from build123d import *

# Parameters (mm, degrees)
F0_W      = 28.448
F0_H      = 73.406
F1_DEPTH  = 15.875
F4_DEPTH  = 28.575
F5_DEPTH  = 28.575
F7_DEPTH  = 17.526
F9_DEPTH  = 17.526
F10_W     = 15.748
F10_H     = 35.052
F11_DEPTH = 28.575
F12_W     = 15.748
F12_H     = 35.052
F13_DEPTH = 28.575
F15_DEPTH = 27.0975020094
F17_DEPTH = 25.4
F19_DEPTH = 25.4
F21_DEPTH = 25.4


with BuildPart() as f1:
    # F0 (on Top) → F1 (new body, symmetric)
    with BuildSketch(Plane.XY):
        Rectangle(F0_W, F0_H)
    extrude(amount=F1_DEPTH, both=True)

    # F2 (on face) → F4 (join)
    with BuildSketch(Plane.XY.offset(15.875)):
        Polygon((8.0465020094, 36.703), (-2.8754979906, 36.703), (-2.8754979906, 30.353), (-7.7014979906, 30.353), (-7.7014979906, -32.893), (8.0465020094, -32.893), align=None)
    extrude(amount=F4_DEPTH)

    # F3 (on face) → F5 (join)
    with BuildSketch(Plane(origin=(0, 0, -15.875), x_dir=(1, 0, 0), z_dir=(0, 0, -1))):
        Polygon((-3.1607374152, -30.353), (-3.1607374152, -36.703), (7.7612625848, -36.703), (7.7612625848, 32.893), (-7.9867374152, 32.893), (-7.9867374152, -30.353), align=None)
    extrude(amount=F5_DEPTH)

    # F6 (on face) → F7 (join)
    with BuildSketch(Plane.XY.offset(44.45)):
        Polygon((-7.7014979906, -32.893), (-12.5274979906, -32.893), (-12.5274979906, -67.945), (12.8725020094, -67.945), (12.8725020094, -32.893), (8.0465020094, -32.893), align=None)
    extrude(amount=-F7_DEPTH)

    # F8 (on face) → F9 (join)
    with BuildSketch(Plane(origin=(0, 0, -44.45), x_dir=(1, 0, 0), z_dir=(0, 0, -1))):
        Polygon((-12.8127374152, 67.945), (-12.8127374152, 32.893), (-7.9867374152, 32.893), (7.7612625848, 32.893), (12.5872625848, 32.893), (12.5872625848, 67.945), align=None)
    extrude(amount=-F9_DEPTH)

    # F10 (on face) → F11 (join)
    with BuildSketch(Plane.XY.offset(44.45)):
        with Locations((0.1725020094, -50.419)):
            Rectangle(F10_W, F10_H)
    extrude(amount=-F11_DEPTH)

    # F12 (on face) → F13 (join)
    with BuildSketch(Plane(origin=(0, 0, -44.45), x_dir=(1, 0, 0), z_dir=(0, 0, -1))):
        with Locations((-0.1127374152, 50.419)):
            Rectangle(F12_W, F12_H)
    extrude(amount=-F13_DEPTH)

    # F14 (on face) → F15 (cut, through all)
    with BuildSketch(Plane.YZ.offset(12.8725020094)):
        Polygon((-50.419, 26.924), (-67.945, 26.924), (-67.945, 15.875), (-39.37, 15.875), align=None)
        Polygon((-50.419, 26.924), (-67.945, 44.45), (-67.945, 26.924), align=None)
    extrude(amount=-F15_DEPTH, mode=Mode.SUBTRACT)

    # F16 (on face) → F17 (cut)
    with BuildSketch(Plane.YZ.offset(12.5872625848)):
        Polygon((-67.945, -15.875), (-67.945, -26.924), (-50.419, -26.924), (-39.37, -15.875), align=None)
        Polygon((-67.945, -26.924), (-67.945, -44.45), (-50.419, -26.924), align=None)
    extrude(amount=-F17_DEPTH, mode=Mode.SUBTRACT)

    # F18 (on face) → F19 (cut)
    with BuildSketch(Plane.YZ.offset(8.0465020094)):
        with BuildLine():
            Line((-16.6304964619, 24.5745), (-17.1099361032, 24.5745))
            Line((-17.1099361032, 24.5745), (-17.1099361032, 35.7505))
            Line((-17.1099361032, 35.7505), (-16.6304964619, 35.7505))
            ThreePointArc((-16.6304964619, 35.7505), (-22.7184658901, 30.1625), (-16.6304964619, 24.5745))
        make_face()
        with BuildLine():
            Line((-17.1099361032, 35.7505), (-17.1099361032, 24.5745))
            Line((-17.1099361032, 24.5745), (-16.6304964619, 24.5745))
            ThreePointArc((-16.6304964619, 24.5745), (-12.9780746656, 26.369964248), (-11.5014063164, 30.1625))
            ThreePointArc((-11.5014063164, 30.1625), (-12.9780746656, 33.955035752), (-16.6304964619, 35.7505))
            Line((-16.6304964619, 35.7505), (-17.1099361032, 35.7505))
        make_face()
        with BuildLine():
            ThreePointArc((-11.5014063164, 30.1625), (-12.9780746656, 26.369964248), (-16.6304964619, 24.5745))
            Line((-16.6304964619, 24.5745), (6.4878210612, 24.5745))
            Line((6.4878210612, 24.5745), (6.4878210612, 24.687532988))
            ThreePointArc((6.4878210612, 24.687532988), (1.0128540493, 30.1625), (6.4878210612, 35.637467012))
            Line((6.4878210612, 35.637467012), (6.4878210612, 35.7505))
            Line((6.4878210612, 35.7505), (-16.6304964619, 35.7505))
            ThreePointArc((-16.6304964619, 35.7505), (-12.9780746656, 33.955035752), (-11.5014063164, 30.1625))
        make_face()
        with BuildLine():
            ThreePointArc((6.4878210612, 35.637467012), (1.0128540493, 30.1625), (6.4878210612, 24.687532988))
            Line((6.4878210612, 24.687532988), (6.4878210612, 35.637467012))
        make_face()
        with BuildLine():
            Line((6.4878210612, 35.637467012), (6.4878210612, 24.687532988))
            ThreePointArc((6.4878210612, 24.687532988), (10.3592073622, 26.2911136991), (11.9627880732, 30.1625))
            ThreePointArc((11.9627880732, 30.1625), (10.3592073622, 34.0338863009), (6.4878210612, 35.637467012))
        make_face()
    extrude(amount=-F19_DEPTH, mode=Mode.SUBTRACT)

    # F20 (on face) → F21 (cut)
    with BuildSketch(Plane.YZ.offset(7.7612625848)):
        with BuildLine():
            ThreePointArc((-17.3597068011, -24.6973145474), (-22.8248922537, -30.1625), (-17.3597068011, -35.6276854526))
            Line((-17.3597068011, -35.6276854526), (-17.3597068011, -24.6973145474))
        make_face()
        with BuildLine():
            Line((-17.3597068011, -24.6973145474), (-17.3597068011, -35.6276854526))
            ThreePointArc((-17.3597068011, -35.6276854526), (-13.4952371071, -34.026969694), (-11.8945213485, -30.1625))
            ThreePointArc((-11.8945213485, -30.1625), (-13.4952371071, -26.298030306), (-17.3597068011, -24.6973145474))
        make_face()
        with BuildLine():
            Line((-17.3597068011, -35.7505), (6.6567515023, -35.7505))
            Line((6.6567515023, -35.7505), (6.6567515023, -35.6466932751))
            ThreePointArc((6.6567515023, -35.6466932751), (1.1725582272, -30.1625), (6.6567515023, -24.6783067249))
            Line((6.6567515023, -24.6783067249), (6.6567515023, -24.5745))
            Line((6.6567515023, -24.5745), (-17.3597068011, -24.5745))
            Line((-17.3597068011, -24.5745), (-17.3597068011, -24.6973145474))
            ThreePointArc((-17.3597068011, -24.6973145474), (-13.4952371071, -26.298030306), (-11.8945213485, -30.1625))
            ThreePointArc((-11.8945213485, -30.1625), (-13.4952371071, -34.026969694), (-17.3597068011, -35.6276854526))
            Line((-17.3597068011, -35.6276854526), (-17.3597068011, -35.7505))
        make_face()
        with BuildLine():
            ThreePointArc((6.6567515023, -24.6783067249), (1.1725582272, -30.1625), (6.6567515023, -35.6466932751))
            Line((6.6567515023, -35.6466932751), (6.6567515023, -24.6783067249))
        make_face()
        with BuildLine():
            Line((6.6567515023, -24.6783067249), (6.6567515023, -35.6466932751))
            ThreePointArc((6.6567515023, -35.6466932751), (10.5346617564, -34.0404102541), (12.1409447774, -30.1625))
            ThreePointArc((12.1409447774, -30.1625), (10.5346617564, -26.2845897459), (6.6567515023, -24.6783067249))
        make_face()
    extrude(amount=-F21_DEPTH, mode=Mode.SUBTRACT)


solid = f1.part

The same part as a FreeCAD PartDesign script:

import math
import FreeCAD as App
import Part
import Sketcher

V = App.Vector
Q = App.Units.Quantity


def add_polygon(sketch, points):
    """Adds a closed chain of lines whose ends are joined by coincident constraints."""
    first, n = sketch.GeometryCount, len(points)
    for a, b in zip(points, points[1:] + points[:1]):
        sketch.addGeometry(Part.LineSegment(App.Vector(*a, 0), App.Vector(*b, 0)), False)
    for i in range(n):
        sketch.addConstraint(Sketcher.Constraint("Coincident", first + i, 2, first + (i + 1) % n, 1))

doc = App.newDocument("Part")
params = doc.addObject("Spreadsheet::Sheet", "Params")
for row, (alias, value) in enumerate([
    ("sketch1_width", "1.12 in"),
    ("sketch1_height", "2.89 in"),
    ("pad1_length", "1.25 in"),
    ("sketch2_width", "0.43 in"),
    ("sketch2_width2", "0.19 in"),
    ("sketch2_height", "0.25 in"),
    ("sketch2_height2", "2.49 in"),
    ("pad2_length", "1.125 in"),
    ("sketch3_width", "0.43 in"),
    ("sketch3_width2", "0.62 in"),
    ("sketch3_height", "0.25 in"),
    ("sketch3_height2", "2.74 in"),
    ("pad3_length", "1.125 in"),
    ("sketch4_width", "1 in"),
    ("sketch4_height", "1.38 in"),
    ("pad4_length", "0.69 in"),
    ("sketch5_width", "1 in"),
    ("sketch5_height", "1.38 in"),
    ("pad5_length", "0.69 in"),
    ("sketch6_width", "0.62 in"),
    ("sketch6_height", "1.38 in"),
    ("pad6_length", "1.125 in"),
    ("sketch7_width", "0.62 in"),
    ("sketch7_height", "1.38 in"),
    ("pad7_length", "1.125 in"),
    ("sketch8_width", "1.125 in"),
    ("sketch9_width", "1.125 in"),
    ("pocket2_length", "1 in"),
    ("sketch10_height", "0.22 in"),
    ("pocket3_length", "1 in"),
    ("pocket4_length", "1 in"),
], start=1):
    params.set(f"A{row}", alias)
    params.set(f"B{row}", "=" + value)
    params.setAlias(f"B{row}", alias)

body = doc.addObject("PartDesign::Body", "Body")

# Sketch on XY plane
sketch1 = doc.addObject("Sketcher::SketchObject", "Sketch")
body.addObject(sketch1)
sketch1.AttachmentSupport = (doc.XY_Plane, [""])
sketch1.MapMode = "FlatFace"
add_polygon(sketch1, [(-14, 37), (-14, -37), (14, -37), (14, 37)])  # lines 0-3
sketch1.addConstraint(Sketcher.Constraint("Vertical", 0))
sketch1.addConstraint(Sketcher.Constraint("Horizontal", 1))
sketch1.addConstraint(Sketcher.Constraint("Vertical", 2))
sketch1.addConstraint(Sketcher.Constraint("Horizontal", 3))
sketch1.addConstraint(Sketcher.Constraint("Symmetric", 0, 2, 2, 2, -1, 1))
sketch1.addConstraint(Sketcher.Constraint("DistanceX", 1, 1, 1, 2, Q("1.12 in")))
sketch1.addConstraint(Sketcher.Constraint("DistanceY", 0, 2, 0, 1, Q("2.89 in")))
sketch1.setExpression("Constraints[9]", "Params.sketch1_width")
sketch1.setExpression("Constraints[10]", "Params.sketch1_height")
pad1 = doc.addObject("PartDesign::Pad", "Pad")
body.addObject(pad1)
pad1.Profile = sketch1
pad1.setExpression("Length", "Params.pad1_length")
pad1.Midplane = True

# Sketch on XY plane
sketch2 = doc.addObject("Sketcher::SketchObject", "Sketch001")
body.addObject(sketch2)
sketch2.AttachmentSupport = (doc.XY_Plane, [""])
sketch2.MapMode = "FlatFace"
sketch2.AttachmentOffset = App.Placement(V(0, 0, 0.625 * 25.4), App.Rotation())
add_polygon(sketch2, [(8, 36.7), (-2.9, 36.7), (-2.9, 30.4), (-7.7, 30.4), (-7.7, -32.9), (8, -32.9)])  # lines 0-5
sketch2.addConstraint(Sketcher.Constraint("Horizontal", 0))
sketch2.addConstraint(Sketcher.Constraint("Vertical", 1))
sketch2.addConstraint(Sketcher.Constraint("Horizontal", 2))
sketch2.addConstraint(Sketcher.Constraint("Vertical", 3))
sketch2.addConstraint(Sketcher.Constraint("Horizontal", 4))
sketch2.addConstraint(Sketcher.Constraint("Vertical", 5))
sketch2.addConstraint(Sketcher.Constraint("DistanceX", 0, 2, 0, 1, Q("0.43 in")))
sketch2.addConstraint(Sketcher.Constraint("DistanceX", 2, 2, 2, 1, Q("0.19 in")))
sketch2.addConstraint(Sketcher.Constraint("DistanceY", 1, 2, 1, 1, Q("0.25 in")))
sketch2.addConstraint(Sketcher.Constraint("DistanceY", 3, 2, 3, 1, Q("2.49 in")))
sketch2.addConstraint(Sketcher.Constraint("DistanceY", -1, 1, 0, 2, Q("1.445 in")))
sketch2.addConstraint(Sketcher.Constraint("DistanceX", 0, 2, -1, 1, 2.875498))
sketch2.setExpression("Constraints[12]", "Params.sketch2_width")
sketch2.setExpression("Constraints[13]", "Params.sketch2_width2")
sketch2.setExpression("Constraints[14]", "Params.sketch2_height")
sketch2.setExpression("Constraints[15]", "Params.sketch2_height2")
pad2 = doc.addObject("PartDesign::Pad", "Pad001")
body.addObject(pad2)
pad2.Profile = sketch2
pad2.setExpression("Length", "Params.pad2_length")

# Sketch on XY plane
sketch3 = doc.addObject("Sketcher::SketchObject", "Sketch002")
body.addObject(sketch3)
sketch3.AttachmentSupport = (doc.XY_Plane, [""])
sketch3.MapMode = "FlatFace"
sketch3.AttachmentOffset = App.Placement(V(0, 0, -0.625 * 25.4), App.Rotation())
add_polygon(sketch3, [(-3.2, 30.4), (-3.2, 36.7), (7.8, 36.7), (7.8, -32.9), (-8, -32.9), (-8, 30.4)])  # lines 0-5
sketch3.addConstraint(Sketcher.Constraint("Vertical", 0))
sketch3.addConstraint(Sketcher.Constraint("Horizontal", 1))
sketch3.addConstraint(Sketcher.Constraint("Vertical", 2))
sketch3.addConstraint(Sketcher.Constraint("Horizontal", 3))
sketch3.addConstraint(Sketcher.Constraint("Vertical", 4))
sketch3.addConstraint(Sketcher.Constraint("Horizontal", 5))
sketch3.addConstraint(Sketcher.Constraint("DistanceX", 1, 1, 1, 2, Q("0.43 in")))
sketch3.addConstraint(Sketcher.Constraint("DistanceX", 3, 2, 3, 1, Q("0.62 in")))
sketch3.addConstraint(Sketcher.Constraint("DistanceY", 0, 1, 0, 2, Q("0.25 in")))
sketch3.addConstraint(Sketcher.Constraint("DistanceY", 2, 2, 2, 1, Q("2.74 in")))
sketch3.addConstraint(Sketcher.Constraint("DistanceY", -1, 1, 0, 2, Q("1.445 in")))
sketch3.addConstraint(Sketcher.Constraint("DistanceX", 0, 2, -1, 1, 3.160737))
sketch3.setExpression("Constraints[12]", "Params.sketch3_width")
sketch3.setExpression("Constraints[13]", "Params.sketch3_width2")
sketch3.setExpression("Constraints[14]", "Params.sketch3_height")
sketch3.setExpression("Constraints[15]", "Params.sketch3_height2")
pad3 = doc.addObject("PartDesign::Pad", "Pad002")
body.addObject(pad3)
pad3.Profile = sketch3
pad3.setExpression("Length", "Params.pad3_length")
pad3.Reversed = True

# Sketch on XY plane
sketch4 = doc.addObject("Sketcher::SketchObject", "Sketch003")
body.addObject(sketch4)
sketch4.AttachmentSupport = (doc.XY_Plane, [""])
sketch4.MapMode = "FlatFace"
sketch4.AttachmentOffset = App.Placement(V(0, 0, 1.75 * 25.4), App.Rotation())
add_polygon(sketch4, [(-13, -33), (-13, -68), (13, -68), (13, -33)])  # lines 0-3
sketch4.addConstraint(Sketcher.Constraint("Vertical", 0))
sketch4.addConstraint(Sketcher.Constraint("Horizontal", 1))
sketch4.addConstraint(Sketcher.Constraint("Vertical", 2))
sketch4.addConstraint(Sketcher.Constraint("Horizontal", 3))
sketch4.addConstraint(Sketcher.Constraint("DistanceX", 1, 1, 1, 2, Q("1 in")))
sketch4.addConstraint(Sketcher.Constraint("DistanceY", 0, 2, 0, 1, Q("1.38 in")))
sketch4.addConstraint(Sketcher.Constraint("DistanceY", 0, 2, -1, 1, Q("2.675 in")))
sketch4.addConstraint(Sketcher.Constraint("DistanceX", 0, 2, -1, 1, 12.527498))
sketch4.setExpression("Constraints[8]", "Params.sketch4_width")
sketch4.setExpression("Constraints[9]", "Params.sketch4_height")
pad4 = doc.addObject("PartDesign::Pad", "Pad003")
body.addObject(pad4)
pad4.Profile = sketch4
pad4.setExpression("Length", "Params.pad4_length")
pad4.Reversed = True

# Sketch on XY plane
sketch5 = doc.addObject("Sketcher::SketchObject", "Sketch004")
body.addObject(sketch5)
sketch5.AttachmentSupport = (doc.XY_Plane, [""])
sketch5.MapMode = "FlatFace"
sketch5.AttachmentOffset = App.Placement(V(0, 0, -1.75 * 25.4), App.Rotation())
add_polygon(sketch5, [(-13, -68), (-13, -33), (13, -33), (13, -68)])  # lines 0-3
sketch5.addConstraint(Sketcher.Constraint("Vertical", 0))
sketch5.addConstraint(Sketcher.Constraint("Horizontal", 1))
sketch5.addConstraint(Sketcher.Constraint("Vertical", 2))
sketch5.addConstraint(Sketcher.Constraint("Horizontal", 3))
sketch5.addConstraint(Sketcher.Constraint("DistanceX", 1, 1, 1, 2, Q("1 in")))
sketch5.addConstraint(Sketcher.Constraint("DistanceY", 0, 1, 0, 2, Q("1.38 in")))
sketch5.addConstraint(Sketcher.Constraint("DistanceY", 0, 2, -1, 1, Q("1.295 in")))
sketch5.addConstraint(Sketcher.Constraint("DistanceX", 0, 2, -1, 1, 12.812737))
sketch5.setExpression("Constraints[8]", "Params.sketch5_width")
sketch5.setExpression("Constraints[9]", "Params.sketch5_height")
pad5 = doc.addObject("PartDesign::Pad", "Pad004")
body.addObject(pad5)
pad5.Profile = sketch5
pad5.setExpression("Length", "Params.pad5_length")

# Sketch on XY plane
sketch6 = doc.addObject("Sketcher::SketchObject", "Sketch005")
body.addObject(sketch6)
sketch6.AttachmentSupport = (doc.XY_Plane, [""])
sketch6.MapMode = "FlatFace"
sketch6.AttachmentOffset = App.Placement(V(0, 0, 1.75 * 25.4), App.Rotation())
add_polygon(sketch6, [(-8, -33), (-8, -68), (8, -68), (8, -33)])  # lines 0-3
sketch6.addConstraint(Sketcher.Constraint("Vertical", 0))
sketch6.addConstraint(Sketcher.Constraint("Horizontal", 1))
sketch6.addConstraint(Sketcher.Constraint("Vertical", 2))
sketch6.addConstraint(Sketcher.Constraint("Horizontal", 3))
sketch6.addConstraint(Sketcher.Constraint("DistanceX", 1, 1, 1, 2, Q("0.62 in")))
sketch6.addConstraint(Sketcher.Constraint("DistanceY", 0, 2, 0, 1, Q("1.38 in")))
sketch6.addConstraint(Sketcher.Constraint("DistanceY", 0, 2, -1, 1, Q("2.675 in")))
sketch6.addConstraint(Sketcher.Constraint("DistanceX", 0, 2, -1, 1, 7.701498))
sketch6.setExpression("Constraints[8]", "Params.sketch6_width")
sketch6.setExpression("Constraints[9]", "Params.sketch6_height")
pad6 = doc.addObject("PartDesign::Pad", "Pad005")
body.addObject(pad6)
pad6.Profile = sketch6
pad6.setExpression("Length", "Params.pad6_length")
pad6.Reversed = True

# Sketch on XY plane
sketch7 = doc.addObject("Sketcher::SketchObject", "Sketch006")
body.addObject(sketch7)
sketch7.AttachmentSupport = (doc.XY_Plane, [""])
sketch7.MapMode = "FlatFace"
sketch7.AttachmentOffset = App.Placement(V(0, 0, -1.75 * 25.4), App.Rotation())
add_polygon(sketch7, [(-8, -68), (-8, -33), (8, -33), (8, -68)])  # lines 0-3
sketch7.addConstraint(Sketcher.Constraint("Vertical", 0))
sketch7.addConstraint(Sketcher.Constraint("Horizontal", 1))
sketch7.addConstraint(Sketcher.Constraint("Vertical", 2))
sketch7.addConstraint(Sketcher.Constraint("Horizontal", 3))
sketch7.addConstraint(Sketcher.Constraint("DistanceX", 1, 1, 1, 2, Q("0.62 in")))
sketch7.addConstraint(Sketcher.Constraint("DistanceY", 0, 1, 0, 2, Q("1.38 in")))
sketch7.addConstraint(Sketcher.Constraint("DistanceY", 0, 2, -1, 1, Q("1.295 in")))
sketch7.addConstraint(Sketcher.Constraint("DistanceX", 0, 2, -1, 1, 7.986737))
sketch7.setExpression("Constraints[8]", "Params.sketch7_width")
sketch7.setExpression("Constraints[9]", "Params.sketch7_height")
pad7 = doc.addObject("PartDesign::Pad", "Pad006")
body.addObject(pad7)
pad7.Profile = sketch7
pad7.setExpression("Length", "Params.pad7_length")

# Sketch on YZ plane
sketch8 = doc.addObject("Sketcher::SketchObject", "Sketch007")
body.addObject(sketch8)
sketch8.AttachmentSupport = (doc.YZ_Plane, [""])
sketch8.MapMode = "FlatFace"
sketch8.AttachmentOffset = App.Placement(V(0, 0, 12.872502), App.Rotation())
add_polygon(sketch8, [(-68, 16), (-39, 16), (-68, 44)])  # lines 0-2
sketch8.addConstraint(Sketcher.Constraint("Horizontal", 0))
sketch8.addConstraint(Sketcher.Constraint("Vertical", 2))
sketch8.addConstraint(Sketcher.Constraint("Equal", 0, 2))
sketch8.addConstraint(Sketcher.Constraint("DistanceX", 0, 1, 0, 2, Q("1.125 in")))
sketch8.addConstraint(Sketcher.Constraint("DistanceX", 0, 2, -1, 1, Q("1.55 in")))
sketch8.addConstraint(Sketcher.Constraint("DistanceY", -1, 1, 1, 2, Q("1.75 in")))
sketch8.setExpression("Constraints[6]", "Params.sketch8_width")
pocket1 = doc.addObject("PartDesign::Pocket", "Pocket")
body.addObject(pocket1)
pocket1.Profile = sketch8
pocket1.Type = "ThroughAll"

# Sketch on YZ plane
sketch9 = doc.addObject("Sketcher::SketchObject", "Sketch008")
body.addObject(sketch9)
sketch9.AttachmentSupport = (doc.YZ_Plane, [""])
sketch9.MapMode = "FlatFace"
sketch9.AttachmentOffset = App.Placement(V(0, 0, 12.587263), App.Rotation())
add_polygon(sketch9, [(-68, -16), (-68, -44), (-39, -16)])  # lines 0-2
sketch9.addConstraint(Sketcher.Constraint("Vertical", 0))
sketch9.addConstraint(Sketcher.Constraint("Horizontal", 2))
sketch9.addConstraint(Sketcher.Constraint("Equal", 2, 0))
sketch9.addConstraint(Sketcher.Constraint("DistanceX", 2, 2, 2, 1, Q("1.125 in")))
sketch9.addConstraint(Sketcher.Constraint("DistanceY", 0, 2, -1, 1, Q("1.75 in")))
sketch9.addConstraint(Sketcher.Constraint("DistanceX", 1, 2, -1, 1, Q("1.55 in")))
sketch9.setExpression("Constraints[6]", "Params.sketch9_width")
pocket2 = doc.addObject("PartDesign::Pocket", "Pocket001")
body.addObject(pocket2)
pocket2.Profile = sketch9
pocket2.setExpression("Length", "Params.pocket2_length")

# Sketch on YZ plane
sketch10 = doc.addObject("Sketcher::SketchObject", "Sketch009")
body.addObject(sketch10)
sketch10.AttachmentSupport = (doc.YZ_Plane, [""])
sketch10.MapMode = "FlatFace"
sketch10.AttachmentOffset = App.Placement(V(0, 0, 8.046502), App.Rotation())
sketch10.addGeometry(Part.ArcOfCircle(Part.Circle(V(-17.11, 30.16, 0), V(0, 0, 1), 5.61), math.radians(85), math.radians(275)), False)
sketch10.addGeometry(Part.LineSegment(V(-16.63, 24.57, 0), V(6.49, 24.57, 0)), False)
sketch10.addGeometry(Part.LineSegment(V(6.49, 24.57, 0), V(6.49, 24.69, 0)), False)
sketch10.addGeometry(Part.ArcOfCircle(Part.Circle(V(6.49, 30.16, 0), V(0, 0, 1), 5.47), math.radians(-90), math.radians(0)), False)
sketch10.addGeometry(Part.ArcOfCircle(Part.Circle(V(6.49, 30.16, 0), V(0, 0, 1), 5.47), math.radians(0), math.radians(90)), False)
sketch10.addGeometry(Part.LineSegment(V(6.49, 35.64, 0), V(6.49, 35.75, 0)), False)
sketch10.addGeometry(Part.LineSegment(V(6.49, 35.75, 0), V(-16.63, 35.75, 0)), False)
sketch10.addConstraint(Sketcher.Constraint("Coincident", 0, 2, 1, 1))
sketch10.addConstraint(Sketcher.Constraint("Coincident", 1, 2, 2, 1))
sketch10.addConstraint(Sketcher.Constraint("Coincident", 2, 2, 3, 1))
sketch10.addConstraint(Sketcher.Constraint("Tangent", 3, 2, 4, 1))
sketch10.addConstraint(Sketcher.Constraint("Coincident", 4, 2, 5, 1))
sketch10.addConstraint(Sketcher.Constraint("Coincident", 5, 2, 6, 1))
sketch10.addConstraint(Sketcher.Constraint("Coincident", 6, 2, 0, 1))
sketch10.addConstraint(Sketcher.Constraint("Horizontal", 1))
sketch10.addConstraint(Sketcher.Constraint("Vertical", 2))
sketch10.addConstraint(Sketcher.Constraint("Vertical", 5))
sketch10.addConstraint(Sketcher.Constraint("Horizontal", 6))
sketch10.addConstraint(Sketcher.Constraint("Equal", 3, 4))
sketch10.addConstraint(Sketcher.Constraint("Horizontal", 0, 3, 3, 3))
sketch10.addConstraint(Sketcher.Constraint("Horizontal", 4, 3, 3, 2))
sketch10.addConstraint(Sketcher.Constraint("Vertical", 4, 3, 1, 2))
sketch10.addConstraint(Sketcher.Constraint("Vertical", 2, 2, 4, 2))
sketch10.addConstraint(Sketcher.Constraint("Vertical", 0, 2, 6, 2))
sketch10.addConstraint(Sketcher.Constraint("DistanceY", 0, 2, 0, 3, Q("0.22 in")))
sketch10.addConstraint(Sketcher.Constraint("DistanceY", -1, 1, 0, 3, Q("1.1875 in")))
sketch10.addConstraint(Sketcher.Constraint("Radius", 0, 5.60853))
sketch10.addConstraint(Sketcher.Constraint("Radius", 3, 5.474967))
sketch10.addConstraint(Sketcher.Constraint("DistanceX", 1, 1, 1, 2, 23.118318))
sketch10.addConstraint(Sketcher.Constraint("DistanceX", -1, 1, 3, 3, 6.487821))
sketch10.setExpression("Constraints[17]", "Params.sketch10_height")
pocket3 = doc.addObject("PartDesign::Pocket", "Pocket002")
body.addObject(pocket3)
pocket3.Profile = sketch10
pocket3.setExpression("Length", "Params.pocket3_length")

# Sketch on YZ plane
sketch11 = doc.addObject("Sketcher::SketchObject", "Sketch010")
body.addObject(sketch11)
sketch11.AttachmentSupport = (doc.YZ_Plane, [""])
sketch11.MapMode = "FlatFace"
sketch11.AttachmentOffset = App.Placement(V(0, 0, 7.761263), App.Rotation())
sketch11.addGeometry(Part.ArcOfCircle(Part.Circle(V(-17.36, -30.16, 0), V(0, 0, 1), 5.47), math.radians(90), math.radians(270)), False)
sketch11.addGeometry(Part.LineSegment(V(-17.36, -35.63, 0), V(-17.36, -35.75, 0)), False)
sketch11.addGeometry(Part.LineSegment(V(-17.36, -35.75, 0), V(6.66, -35.75, 0)), False)
sketch11.addGeometry(Part.LineSegment(V(6.66, -35.75, 0), V(6.66, -35.65, 0)), False)
sketch11.addGeometry(Part.ArcOfCircle(Part.Circle(V(6.66, -30.16, 0), V(0, 0, 1), 5.48), math.radians(-90), math.radians(0)), False)
sketch11.addGeometry(Part.ArcOfCircle(Part.Circle(V(6.66, -30.16, 0), V(0, 0, 1), 5.48), math.radians(0), math.radians(90)), False)
sketch11.addGeometry(Part.LineSegment(V(6.66, -24.68, 0), V(6.66, -24.57, 0)), False)
sketch11.addGeometry(Part.LineSegment(V(6.66, -24.57, 0), V(-17.36, -24.57, 0)), False)
sketch11.addGeometry(Part.LineSegment(V(-17.36, -24.57, 0), V(-17.36, -24.7, 0)), False)
sketch11.addConstraint(Sketcher.Constraint("Coincident", 0, 2, 1, 1))
sketch11.addConstraint(Sketcher.Constraint("Coincident", 1, 2, 2, 1))
sketch11.addConstraint(Sketcher.Constraint("Coincident", 2, 2, 3, 1))
sketch11.addConstraint(Sketcher.Constraint("Coincident", 3, 2, 4, 1))
sketch11.addConstraint(Sketcher.Constraint("Tangent", 4, 2, 5, 1))
sketch11.addConstraint(Sketcher.Constraint("Coincident", 5, 2, 6, 1))
sketch11.addConstraint(Sketcher.Constraint("Coincident", 6, 2, 7, 1))
sketch11.addConstraint(Sketcher.Constraint("Coincident", 7, 2, 8, 1))
sketch11.addConstraint(Sketcher.Constraint("Coincident", 8, 2, 0, 1))
sketch11.addConstraint(Sketcher.Constraint("Vertical", 1))
sketch11.addConstraint(Sketcher.Constraint("Horizontal", 2))
sketch11.addConstraint(Sketcher.Constraint("Vertical", 3))
sketch11.addConstraint(Sketcher.Constraint("Vertical", 6))
sketch11.addConstraint(Sketcher.Constraint("Horizontal", 7))
sketch11.addConstraint(Sketcher.Constraint("Vertical", 8))
sketch11.addConstraint(Sketcher.Constraint("Equal", 4, 5))
sketch11.addConstraint(Sketcher.Constraint("Horizontal", 0, 3, 4, 3))
sketch11.addConstraint(Sketcher.Constraint("Horizontal", 5, 3, 4, 2))
sketch11.addConstraint(Sketcher.Constraint("Vertical", 5, 3, 2, 2))
sketch11.addConstraint(Sketcher.Constraint("Vertical", 3, 2, 5, 2))
sketch11.addConstraint(Sketcher.Constraint("Vertical", 1, 2, 7, 2))
sketch11.addConstraint(Sketcher.Constraint("Equal", 3, 6))
sketch11.addConstraint(Sketcher.Constraint("DistanceY", 1, 2, 0, 3, Q("0.22 in")))
sketch11.addConstraint(Sketcher.Constraint("DistanceY", 0, 3, -1, 1, Q("1.1875 in")))
sketch11.addConstraint(Sketcher.Constraint("Radius", 0, 5.465185))
sketch11.addConstraint(Sketcher.Constraint("Radius", 4, 5.484193))
sketch11.addConstraint(Sketcher.Constraint("DistanceX", 2, 1, 2, 2, 24.016458))
sketch11.addConstraint(Sketcher.Constraint("DistanceX", -1, 1, 4, 3, 6.656752))
sketch11.addConstraint(Sketcher.Constraint("DistanceX", 0, 3, 4, 3, 24.016458))
pocket4 = doc.addObject("PartDesign::Pocket", "Pocket003")
body.addObject(pocket4)
pocket4.Profile = sketch11
pocket4.setExpression("Length", "Params.pocket4_length")

doc.recompute()
